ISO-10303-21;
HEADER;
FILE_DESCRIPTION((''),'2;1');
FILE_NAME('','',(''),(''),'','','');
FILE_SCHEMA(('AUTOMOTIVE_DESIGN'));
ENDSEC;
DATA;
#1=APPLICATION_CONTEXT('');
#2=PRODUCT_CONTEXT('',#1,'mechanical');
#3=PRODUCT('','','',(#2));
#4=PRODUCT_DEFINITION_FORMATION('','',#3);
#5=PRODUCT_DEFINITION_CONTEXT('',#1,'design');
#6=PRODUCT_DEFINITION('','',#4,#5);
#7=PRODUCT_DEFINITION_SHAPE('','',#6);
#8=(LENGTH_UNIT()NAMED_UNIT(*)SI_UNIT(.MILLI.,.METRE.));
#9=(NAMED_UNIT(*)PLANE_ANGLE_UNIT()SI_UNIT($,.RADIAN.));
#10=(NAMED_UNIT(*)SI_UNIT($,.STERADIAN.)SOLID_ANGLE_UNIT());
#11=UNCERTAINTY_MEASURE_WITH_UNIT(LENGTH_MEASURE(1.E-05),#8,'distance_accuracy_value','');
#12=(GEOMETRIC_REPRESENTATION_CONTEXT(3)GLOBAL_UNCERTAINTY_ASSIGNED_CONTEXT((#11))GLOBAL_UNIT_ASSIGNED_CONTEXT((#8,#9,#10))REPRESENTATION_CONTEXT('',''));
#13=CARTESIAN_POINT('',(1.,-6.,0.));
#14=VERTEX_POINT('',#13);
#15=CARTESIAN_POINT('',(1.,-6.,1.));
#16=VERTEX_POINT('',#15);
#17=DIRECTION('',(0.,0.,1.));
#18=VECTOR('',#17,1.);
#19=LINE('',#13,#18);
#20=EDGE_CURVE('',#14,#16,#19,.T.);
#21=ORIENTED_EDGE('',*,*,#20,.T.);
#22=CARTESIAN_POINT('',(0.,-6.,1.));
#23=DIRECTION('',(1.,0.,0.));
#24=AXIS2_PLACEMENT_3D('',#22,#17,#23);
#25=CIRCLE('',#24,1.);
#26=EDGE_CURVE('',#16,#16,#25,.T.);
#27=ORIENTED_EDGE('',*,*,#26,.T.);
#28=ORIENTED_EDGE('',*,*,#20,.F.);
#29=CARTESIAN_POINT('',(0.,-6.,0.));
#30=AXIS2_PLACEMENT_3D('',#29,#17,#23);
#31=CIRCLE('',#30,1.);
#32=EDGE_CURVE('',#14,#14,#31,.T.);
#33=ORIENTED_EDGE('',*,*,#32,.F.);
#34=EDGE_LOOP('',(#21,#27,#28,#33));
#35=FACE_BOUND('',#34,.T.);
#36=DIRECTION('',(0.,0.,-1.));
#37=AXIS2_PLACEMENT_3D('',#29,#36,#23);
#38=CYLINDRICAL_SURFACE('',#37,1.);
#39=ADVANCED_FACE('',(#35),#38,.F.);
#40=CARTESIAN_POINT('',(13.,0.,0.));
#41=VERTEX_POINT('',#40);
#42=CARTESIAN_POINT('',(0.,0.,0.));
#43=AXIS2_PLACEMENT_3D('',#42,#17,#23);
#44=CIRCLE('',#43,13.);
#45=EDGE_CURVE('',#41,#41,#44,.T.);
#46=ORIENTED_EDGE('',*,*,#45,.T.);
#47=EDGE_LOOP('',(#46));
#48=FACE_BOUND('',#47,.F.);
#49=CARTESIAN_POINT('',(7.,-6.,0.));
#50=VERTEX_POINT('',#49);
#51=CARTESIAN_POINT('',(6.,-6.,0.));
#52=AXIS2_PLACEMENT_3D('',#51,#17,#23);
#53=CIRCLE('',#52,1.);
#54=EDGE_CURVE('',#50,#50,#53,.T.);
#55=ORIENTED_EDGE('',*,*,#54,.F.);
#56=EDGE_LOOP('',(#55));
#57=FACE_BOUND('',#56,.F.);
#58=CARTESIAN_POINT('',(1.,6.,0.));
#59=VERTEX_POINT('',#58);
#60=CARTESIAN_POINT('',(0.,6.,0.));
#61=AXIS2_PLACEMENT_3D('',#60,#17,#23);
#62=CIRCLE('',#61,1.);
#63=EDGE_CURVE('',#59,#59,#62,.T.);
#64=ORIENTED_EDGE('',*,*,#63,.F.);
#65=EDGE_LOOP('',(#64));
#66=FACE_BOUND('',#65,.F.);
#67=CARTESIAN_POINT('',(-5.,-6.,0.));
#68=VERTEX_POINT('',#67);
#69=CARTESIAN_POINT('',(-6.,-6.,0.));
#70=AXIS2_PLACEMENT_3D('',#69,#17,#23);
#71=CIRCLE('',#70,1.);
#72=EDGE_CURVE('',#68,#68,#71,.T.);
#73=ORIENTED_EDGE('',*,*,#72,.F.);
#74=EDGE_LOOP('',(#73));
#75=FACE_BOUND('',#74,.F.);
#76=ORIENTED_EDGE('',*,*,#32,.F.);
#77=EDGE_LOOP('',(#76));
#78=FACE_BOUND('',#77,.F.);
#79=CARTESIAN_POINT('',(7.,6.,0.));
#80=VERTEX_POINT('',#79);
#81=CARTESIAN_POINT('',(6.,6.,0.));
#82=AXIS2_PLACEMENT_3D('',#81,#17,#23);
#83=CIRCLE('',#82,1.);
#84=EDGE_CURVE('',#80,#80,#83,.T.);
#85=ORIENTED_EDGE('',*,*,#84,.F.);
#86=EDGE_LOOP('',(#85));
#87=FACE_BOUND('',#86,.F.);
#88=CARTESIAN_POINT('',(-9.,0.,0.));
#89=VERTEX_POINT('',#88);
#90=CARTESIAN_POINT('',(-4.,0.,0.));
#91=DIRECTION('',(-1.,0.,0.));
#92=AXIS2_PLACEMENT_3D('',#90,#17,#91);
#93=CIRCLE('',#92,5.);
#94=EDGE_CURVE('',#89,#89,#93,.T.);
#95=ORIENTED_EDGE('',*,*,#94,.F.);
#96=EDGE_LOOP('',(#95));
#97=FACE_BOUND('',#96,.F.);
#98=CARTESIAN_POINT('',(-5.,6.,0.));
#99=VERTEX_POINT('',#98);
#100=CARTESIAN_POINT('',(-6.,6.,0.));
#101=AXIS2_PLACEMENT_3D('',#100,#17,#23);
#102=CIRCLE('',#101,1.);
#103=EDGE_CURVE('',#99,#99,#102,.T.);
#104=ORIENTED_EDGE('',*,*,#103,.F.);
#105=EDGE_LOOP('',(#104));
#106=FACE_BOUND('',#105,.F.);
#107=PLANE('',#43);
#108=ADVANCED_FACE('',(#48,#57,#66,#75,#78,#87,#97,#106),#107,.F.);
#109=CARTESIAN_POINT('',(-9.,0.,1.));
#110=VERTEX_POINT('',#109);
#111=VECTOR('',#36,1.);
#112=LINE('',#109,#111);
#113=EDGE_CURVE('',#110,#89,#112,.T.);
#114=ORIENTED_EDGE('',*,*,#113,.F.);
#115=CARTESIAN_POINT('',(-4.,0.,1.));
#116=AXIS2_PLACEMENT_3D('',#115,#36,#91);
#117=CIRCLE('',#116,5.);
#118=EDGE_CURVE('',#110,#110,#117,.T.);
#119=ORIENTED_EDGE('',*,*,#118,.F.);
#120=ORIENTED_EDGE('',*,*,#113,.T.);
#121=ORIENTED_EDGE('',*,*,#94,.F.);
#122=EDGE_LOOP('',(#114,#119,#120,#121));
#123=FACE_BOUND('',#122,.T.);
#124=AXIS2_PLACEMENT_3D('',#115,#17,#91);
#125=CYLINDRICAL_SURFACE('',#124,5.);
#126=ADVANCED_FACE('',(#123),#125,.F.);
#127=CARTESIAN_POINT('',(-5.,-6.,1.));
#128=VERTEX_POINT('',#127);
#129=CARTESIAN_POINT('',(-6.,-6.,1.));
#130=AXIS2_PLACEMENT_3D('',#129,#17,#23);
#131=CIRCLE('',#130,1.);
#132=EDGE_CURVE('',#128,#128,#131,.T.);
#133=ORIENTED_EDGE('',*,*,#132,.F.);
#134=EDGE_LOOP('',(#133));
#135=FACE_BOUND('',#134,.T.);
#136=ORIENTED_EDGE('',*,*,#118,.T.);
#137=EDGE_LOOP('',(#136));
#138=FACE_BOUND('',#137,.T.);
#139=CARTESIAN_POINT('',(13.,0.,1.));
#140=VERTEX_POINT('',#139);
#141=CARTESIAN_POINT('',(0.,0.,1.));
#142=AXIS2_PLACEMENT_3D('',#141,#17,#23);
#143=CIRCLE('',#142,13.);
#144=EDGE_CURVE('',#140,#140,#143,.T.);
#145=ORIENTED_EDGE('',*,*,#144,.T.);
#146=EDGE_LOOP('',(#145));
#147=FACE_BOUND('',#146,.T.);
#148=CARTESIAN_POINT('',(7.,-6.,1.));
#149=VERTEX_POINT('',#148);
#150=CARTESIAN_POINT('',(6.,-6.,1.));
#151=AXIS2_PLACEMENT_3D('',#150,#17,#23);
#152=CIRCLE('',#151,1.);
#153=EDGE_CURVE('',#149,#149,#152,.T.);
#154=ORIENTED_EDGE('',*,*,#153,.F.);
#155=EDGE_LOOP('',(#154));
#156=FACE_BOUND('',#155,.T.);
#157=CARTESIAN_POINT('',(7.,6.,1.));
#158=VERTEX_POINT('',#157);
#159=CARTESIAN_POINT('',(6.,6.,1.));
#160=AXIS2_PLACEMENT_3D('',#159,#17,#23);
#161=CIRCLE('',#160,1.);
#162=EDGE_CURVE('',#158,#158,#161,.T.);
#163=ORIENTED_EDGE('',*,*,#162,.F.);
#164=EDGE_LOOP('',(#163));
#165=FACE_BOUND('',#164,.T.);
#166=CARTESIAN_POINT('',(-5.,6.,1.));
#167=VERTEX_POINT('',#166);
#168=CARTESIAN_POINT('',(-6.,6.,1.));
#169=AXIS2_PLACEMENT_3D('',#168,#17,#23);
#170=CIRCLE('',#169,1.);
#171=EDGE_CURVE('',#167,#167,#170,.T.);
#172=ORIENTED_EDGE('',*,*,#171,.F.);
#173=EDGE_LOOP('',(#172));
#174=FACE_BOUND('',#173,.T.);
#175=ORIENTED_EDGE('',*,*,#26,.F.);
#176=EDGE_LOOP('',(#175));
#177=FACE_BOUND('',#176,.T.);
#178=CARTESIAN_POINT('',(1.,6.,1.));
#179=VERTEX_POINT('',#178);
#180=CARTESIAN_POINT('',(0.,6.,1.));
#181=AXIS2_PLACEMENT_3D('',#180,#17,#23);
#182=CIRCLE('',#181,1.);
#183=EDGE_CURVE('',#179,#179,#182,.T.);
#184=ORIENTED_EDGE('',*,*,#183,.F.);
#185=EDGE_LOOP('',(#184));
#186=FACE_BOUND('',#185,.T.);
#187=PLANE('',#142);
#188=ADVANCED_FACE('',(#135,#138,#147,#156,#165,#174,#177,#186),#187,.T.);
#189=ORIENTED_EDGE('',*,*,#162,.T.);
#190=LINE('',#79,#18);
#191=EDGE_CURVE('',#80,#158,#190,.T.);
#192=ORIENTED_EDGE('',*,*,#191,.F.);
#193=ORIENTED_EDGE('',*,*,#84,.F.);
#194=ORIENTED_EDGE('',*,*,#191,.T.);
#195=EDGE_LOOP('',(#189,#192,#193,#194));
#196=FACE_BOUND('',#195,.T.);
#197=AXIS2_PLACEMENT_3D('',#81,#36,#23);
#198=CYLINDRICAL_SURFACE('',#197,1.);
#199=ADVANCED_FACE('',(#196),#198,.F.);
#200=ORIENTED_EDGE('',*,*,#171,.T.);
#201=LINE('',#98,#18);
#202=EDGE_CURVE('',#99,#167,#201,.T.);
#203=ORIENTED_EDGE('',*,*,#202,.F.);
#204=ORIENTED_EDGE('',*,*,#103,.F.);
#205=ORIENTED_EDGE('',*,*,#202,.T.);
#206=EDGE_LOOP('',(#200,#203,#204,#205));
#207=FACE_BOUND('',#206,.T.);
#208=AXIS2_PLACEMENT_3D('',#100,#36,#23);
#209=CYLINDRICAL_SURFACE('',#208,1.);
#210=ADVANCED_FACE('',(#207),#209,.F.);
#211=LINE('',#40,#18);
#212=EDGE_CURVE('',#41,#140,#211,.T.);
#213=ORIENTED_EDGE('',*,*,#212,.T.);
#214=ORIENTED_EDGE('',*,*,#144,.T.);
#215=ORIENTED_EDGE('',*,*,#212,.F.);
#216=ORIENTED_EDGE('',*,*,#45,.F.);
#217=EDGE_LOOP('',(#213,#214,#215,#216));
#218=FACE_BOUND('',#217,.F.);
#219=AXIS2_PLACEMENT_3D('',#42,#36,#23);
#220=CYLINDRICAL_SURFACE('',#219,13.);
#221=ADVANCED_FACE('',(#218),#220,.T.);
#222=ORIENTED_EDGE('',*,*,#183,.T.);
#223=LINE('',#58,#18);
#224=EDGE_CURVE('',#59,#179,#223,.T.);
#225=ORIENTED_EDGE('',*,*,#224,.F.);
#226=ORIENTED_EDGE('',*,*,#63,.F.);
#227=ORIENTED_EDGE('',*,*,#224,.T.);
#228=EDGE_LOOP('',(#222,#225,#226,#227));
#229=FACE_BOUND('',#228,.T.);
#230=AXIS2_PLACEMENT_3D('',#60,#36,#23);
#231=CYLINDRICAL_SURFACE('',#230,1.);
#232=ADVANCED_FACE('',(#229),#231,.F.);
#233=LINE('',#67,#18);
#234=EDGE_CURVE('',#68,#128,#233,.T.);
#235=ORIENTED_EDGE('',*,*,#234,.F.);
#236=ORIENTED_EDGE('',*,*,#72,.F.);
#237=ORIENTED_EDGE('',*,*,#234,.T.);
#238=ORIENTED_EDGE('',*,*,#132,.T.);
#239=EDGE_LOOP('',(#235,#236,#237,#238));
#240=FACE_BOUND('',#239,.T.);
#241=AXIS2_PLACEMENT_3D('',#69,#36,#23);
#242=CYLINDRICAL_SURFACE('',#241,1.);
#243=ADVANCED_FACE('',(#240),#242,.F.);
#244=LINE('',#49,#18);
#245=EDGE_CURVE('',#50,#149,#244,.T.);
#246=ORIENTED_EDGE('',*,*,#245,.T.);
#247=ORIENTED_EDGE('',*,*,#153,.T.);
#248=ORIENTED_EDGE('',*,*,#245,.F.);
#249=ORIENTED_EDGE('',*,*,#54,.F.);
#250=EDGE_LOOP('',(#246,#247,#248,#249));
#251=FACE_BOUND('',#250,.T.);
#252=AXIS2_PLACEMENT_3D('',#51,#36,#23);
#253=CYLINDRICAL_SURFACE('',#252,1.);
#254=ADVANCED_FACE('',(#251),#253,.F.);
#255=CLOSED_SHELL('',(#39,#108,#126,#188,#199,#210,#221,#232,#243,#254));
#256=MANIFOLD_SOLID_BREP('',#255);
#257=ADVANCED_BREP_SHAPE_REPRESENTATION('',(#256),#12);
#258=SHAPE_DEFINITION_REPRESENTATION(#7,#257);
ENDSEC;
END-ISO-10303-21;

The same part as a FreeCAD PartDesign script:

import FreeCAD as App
import Part
import Sketcher
from FreeCAD import Vector

doc = App.newDocument("Part")
params = doc.addObject("Spreadsheet::Sheet", "Params")
for row, (alias, value) in enumerate([
    ("sketch1_diameter", "26 mm"),
    ("sketch1_diameter2", "2 mm"),
    ("pad1_length", "1 mm"),
    ("sketch2_diameter", "10 mm"),
    ("pocket1_length", "18 mm"),
], start=1):
    params.set(f"A{row}", alias)
    params.set(f"B{row}", "=" + value)
    params.setAlias(f"B{row}", alias)

body = doc.addObject("PartDesign::Body", "Body")

# Sketch on XY plane
sketch1 = body.newObject("Sketcher::SketchObject", "Sketch")
sketch1.AttachmentSupport = (doc.getObject("XY_Plane"), [""])
sketch1.MapMode = "FlatFace"
sketch1.addGeometry([
    Part.Circle(Vector(0, 0, 0), Vector(0, 0, 1), 13),  # 0
    Part.Circle(Vector(-6, -6, 0), Vector(0, 0, 1), 1),  # 1
    Part.Circle(Vector(0, -6, 0), Vector(0, 0, 1), 1),  # 2
    Part.Circle(Vector(6, -6, 0), Vector(0, 0, 1), 1),  # 3
    Part.Circle(Vector(-6, 6, 0), Vector(0, 0, 1), 1),  # 4
    Part.Circle(Vector(0, 6, 0), Vector(0, 0, 1), 1),  # 5
    Part.Circle(Vector(6, 6, 0), Vector(0, 0, 1), 1),  # 6
], False)
sketch1.addConstraint([
    Sketcher.Constraint("Coincident", 0, 3, -1, 1),
    Sketcher.Constraint("Equal", 1, 2),
    Sketcher.Constraint("Equal", 2, 3),
    Sketcher.Constraint("Equal", 3, 4),
    Sketcher.Constraint("Equal", 4, 5),
    Sketcher.Constraint("Equal", 5, 6),
    Sketcher.Constraint("Symmetric", 3, 3, 4, 3, -1, 1),
    Sketcher.Constraint("Symmetric", 2, 3, 5, 3, -1, 1),
    Sketcher.Constraint("Symmetric", 1, 3, 6, 3, -1, 1),
    Sketcher.Constraint("Symmetric", 1, 3, 3, 3, -2),
    Sketcher.Constraint("PointOnObject", 2, 3, -2),
    Sketcher.Constraint("Horizontal", 1, 3, 2, 3),
    Sketcher.Constraint("Diameter", 0, 26.0),
    Sketcher.Constraint("Diameter", 1, 2.0),
    Sketcher.Constraint("DistanceX", 1, 3, -1, 1, 6.0),
    Sketcher.Constraint("DistanceY", 1, 3, -1, 1, 6.0),
])
sketch1.setExpression("Constraints[12]", "Params.sketch1_diameter")
sketch1.setExpression("Constraints[13]", "Params.sketch1_diameter2")
pad1 = body.newObject("PartDesign::Pad", "Pad")
pad1.Profile = sketch1
pad1.setExpression("Length", "Params.pad1_length")

# Sketch on XY plane
sketch2 = body.newObject("Sketcher::SketchObject", "Sketch001")
sketch2.AttachmentSupport = (doc.getObject("XY_Plane"), [""])
sketch2.MapMode = "FlatFace"
sketch2.AttachmentOffset = App.Placement(Vector(0, 0, 1), App.Rotation())
sketch2.addGeometry(Part.Circle(Vector(-4, 0, 0), Vector(0, 0, 1), 5), False)
sketch2.addConstraint([
    Sketcher.Constraint("PointOnObject", 0, 3, -1),
    Sketcher.Constraint("Diameter", 0, 10.0),
    Sketcher.Constraint("DistanceX", 0, 3, -1, 1, 4.0),
])
sketch2.setExpression("Constraints[1]", "Params.sketch2_diameter")
pocket1 = body.newObject("PartDesign::Pocket", "Pocket")
pocket1.Profile = sketch2
pocket1.setExpression("Length", "Params.pocket1_length")

doc.recompute()
